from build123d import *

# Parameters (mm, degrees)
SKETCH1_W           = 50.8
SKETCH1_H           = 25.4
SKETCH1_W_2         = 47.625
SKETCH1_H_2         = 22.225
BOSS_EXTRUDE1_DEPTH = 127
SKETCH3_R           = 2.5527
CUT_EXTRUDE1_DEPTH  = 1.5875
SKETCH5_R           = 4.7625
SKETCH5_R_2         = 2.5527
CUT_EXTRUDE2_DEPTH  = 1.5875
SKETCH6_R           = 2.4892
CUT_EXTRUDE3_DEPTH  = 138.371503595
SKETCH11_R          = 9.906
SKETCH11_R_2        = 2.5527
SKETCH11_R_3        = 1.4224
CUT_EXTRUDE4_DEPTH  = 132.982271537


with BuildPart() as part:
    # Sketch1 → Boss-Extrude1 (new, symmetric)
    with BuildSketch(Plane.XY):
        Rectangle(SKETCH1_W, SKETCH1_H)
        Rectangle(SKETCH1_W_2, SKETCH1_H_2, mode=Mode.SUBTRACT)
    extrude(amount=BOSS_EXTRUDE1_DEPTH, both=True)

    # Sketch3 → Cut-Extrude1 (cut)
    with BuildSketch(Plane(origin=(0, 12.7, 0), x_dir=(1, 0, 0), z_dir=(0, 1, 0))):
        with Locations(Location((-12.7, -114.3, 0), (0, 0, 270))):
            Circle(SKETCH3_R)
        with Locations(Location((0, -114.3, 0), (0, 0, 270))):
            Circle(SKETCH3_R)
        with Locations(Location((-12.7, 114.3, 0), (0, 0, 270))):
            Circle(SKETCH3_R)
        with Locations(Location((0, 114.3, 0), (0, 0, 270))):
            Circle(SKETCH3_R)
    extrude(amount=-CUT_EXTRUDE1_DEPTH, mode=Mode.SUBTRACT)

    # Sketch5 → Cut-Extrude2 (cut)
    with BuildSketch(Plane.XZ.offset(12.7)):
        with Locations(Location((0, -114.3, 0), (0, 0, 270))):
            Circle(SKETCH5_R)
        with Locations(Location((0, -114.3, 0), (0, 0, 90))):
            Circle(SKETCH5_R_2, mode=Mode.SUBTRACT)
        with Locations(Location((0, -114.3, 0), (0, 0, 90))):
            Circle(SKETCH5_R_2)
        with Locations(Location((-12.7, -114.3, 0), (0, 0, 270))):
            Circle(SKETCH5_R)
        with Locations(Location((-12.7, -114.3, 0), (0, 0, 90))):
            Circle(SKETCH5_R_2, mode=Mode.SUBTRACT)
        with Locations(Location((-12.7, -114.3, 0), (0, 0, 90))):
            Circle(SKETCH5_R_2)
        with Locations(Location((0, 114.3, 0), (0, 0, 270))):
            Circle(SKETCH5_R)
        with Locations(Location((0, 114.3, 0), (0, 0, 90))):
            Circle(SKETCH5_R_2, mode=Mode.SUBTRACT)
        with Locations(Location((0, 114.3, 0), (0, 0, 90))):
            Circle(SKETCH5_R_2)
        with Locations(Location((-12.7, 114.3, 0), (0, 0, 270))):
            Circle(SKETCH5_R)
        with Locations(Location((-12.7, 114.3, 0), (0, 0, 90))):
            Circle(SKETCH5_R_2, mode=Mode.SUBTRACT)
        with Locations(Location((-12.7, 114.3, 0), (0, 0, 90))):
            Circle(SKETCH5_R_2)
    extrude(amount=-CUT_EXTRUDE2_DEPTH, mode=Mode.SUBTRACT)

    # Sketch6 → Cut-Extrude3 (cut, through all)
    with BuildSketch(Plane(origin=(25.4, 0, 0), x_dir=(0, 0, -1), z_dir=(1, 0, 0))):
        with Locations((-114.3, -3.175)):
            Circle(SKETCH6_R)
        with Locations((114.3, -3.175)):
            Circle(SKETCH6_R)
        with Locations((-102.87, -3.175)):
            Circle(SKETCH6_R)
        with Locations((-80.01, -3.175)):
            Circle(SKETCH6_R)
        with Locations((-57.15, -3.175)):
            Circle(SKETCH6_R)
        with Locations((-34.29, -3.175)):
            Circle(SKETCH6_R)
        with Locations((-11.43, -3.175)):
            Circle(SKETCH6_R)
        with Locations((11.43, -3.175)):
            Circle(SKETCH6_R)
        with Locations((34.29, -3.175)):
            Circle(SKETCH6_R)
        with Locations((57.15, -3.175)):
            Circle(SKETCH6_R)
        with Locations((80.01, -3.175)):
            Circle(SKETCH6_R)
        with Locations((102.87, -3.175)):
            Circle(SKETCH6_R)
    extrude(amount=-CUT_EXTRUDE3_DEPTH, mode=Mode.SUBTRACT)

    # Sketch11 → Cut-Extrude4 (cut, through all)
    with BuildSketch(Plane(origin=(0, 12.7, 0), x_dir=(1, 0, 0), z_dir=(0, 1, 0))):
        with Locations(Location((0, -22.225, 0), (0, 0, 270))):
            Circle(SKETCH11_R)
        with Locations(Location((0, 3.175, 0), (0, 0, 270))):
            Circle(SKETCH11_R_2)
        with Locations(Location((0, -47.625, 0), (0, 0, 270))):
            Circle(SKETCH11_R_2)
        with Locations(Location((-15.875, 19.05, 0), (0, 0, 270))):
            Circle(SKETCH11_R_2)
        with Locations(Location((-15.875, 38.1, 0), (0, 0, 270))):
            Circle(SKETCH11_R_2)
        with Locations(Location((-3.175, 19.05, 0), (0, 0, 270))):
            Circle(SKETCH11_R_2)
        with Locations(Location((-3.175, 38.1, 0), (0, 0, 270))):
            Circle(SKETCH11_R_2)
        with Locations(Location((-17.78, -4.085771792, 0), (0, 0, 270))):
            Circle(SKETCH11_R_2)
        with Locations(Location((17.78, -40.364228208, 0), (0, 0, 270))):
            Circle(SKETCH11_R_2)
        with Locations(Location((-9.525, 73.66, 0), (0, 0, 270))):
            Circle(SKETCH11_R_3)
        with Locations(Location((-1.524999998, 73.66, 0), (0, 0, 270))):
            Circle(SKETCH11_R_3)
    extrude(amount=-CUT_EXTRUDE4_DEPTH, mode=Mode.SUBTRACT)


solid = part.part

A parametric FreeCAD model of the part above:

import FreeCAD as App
import Part
import Sketcher
Q = App.Units.Quantity

doc = App.newDocument("Part")
body = doc.addObject("PartDesign::Body", "Body")

# Sketch on XY plane
sketch1 = body.newObject("Sketcher::SketchObject", "Sketch")
sketch1.AttachmentSupport = (doc.getObject("XY_Plane"), [""])
sketch1.MapMode = "FlatFace"
sketch1.addGeometry(Part.LineSegment(App.Vector(-25, 13, 0), App.Vector(-25, -13, 0)), False)
sketch1.addGeometry(Part.LineSegment(App.Vector(-25, -13, 0), App.Vector(25, -13, 0)), False)
sketch1.addGeometry(Part.LineSegment(App.Vector(25, -13, 0), App.Vector(25, 13, 0)), False)
sketch1.addGeometry(Part.LineSegment(App.Vector(25, 13, 0), App.Vector(-25, 13, 0)), False)
sketch1.addGeometry(Part.LineSegment(App.Vector(24, -11, 0), App.Vector(-24, -11, 0)), False)
sketch1.addGeometry(Part.LineSegment(App.Vector(-24, -11, 0), App.Vector(-24, 11, 0)), False)
sketch1.addGeometry(Part.LineSegment(App.Vector(-24, 11, 0), App.Vector(24, 11, 0)), False)
sketch1.addGeometry(Part.LineSegment(App.Vector(24, 11, 0), App.Vector(24, -11, 0)), False)
sketch1.addConstraint(Sketcher.Constraint("Coincident", 0, 2, 1, 1))
sketch1.addConstraint(Sketcher.Constraint("Coincident", 1, 2, 2, 1))
sketch1.addConstraint(Sketcher.Constraint("Coincident", 2, 2, 3, 1))
sketch1.addConstraint(Sketcher.Constraint("Coincident", 3, 2, 0, 1))
sketch1.addConstraint(Sketcher.Constraint("Coincident", 4, 2, 5, 1))
sketch1.addConstraint(Sketcher.Constraint("Coincident", 5, 2, 6, 1))
sketch1.addConstraint(Sketcher.Constraint("Coincident", 6, 2, 7, 1))
sketch1.addConstraint(Sketcher.Constraint("Coincident", 7, 2, 4, 1))
sketch1.addConstraint(Sketcher.Constraint("Vertical", 0))
sketch1.addConstraint(Sketcher.Constraint("Horizontal", 1))
sketch1.addConstraint(Sketcher.Constraint("Vertical", 2))
sketch1.addConstraint(Sketcher.Constraint("Horizontal", 3))
sketch1.addConstraint(Sketcher.Constraint("Horizontal", 4))
sketch1.addConstraint(Sketcher.Constraint("Vertical", 5))
sketch1.addConstraint(Sketcher.Constraint("Horizontal", 6))
sketch1.addConstraint(Sketcher.Constraint("Vertical", 7))
sketch1.addConstraint(Sketcher.Constraint("Symmetric", 0, 2, 2, 2, -1, 1))
sketch1.addConstraint(Sketcher.Constraint("Symmetric", 4, 2, 6, 2, -1, 1))
sketch1.addConstraint(Sketcher.Constraint("DistanceX", 1, 1, 1, 2, Q("2 in")))
sketch1.addConstraint(Sketcher.Constraint("DistanceY", 0, 2, 0, 1, Q("1 in")))
sketch1.addConstraint(Sketcher.Constraint("DistanceX", 4, 2, 4, 1, Q("1.875 in")))
sketch1.addConstraint(Sketcher.Constraint("DistanceY", 5, 1, 5, 2, Q("0.875 in")))
pad1 = body.newObject("PartDesign::Pad", "Pad")
pad1.Profile = sketch1
pad1.Length = Q("10 in")
pad1.Midplane = True

# Sketch on XZ plane
sketch2 = body.newObject("Sketcher::SketchObject", "Sketch001")
sketch2.AttachmentSupport = (doc.getObject("XZ_Plane"), [""])
sketch2.MapMode = "FlatFace"
sketch2.AttachmentOffset = App.Placement(App.Vector(0, 0, -0.5 * 25.4), App.Rotation())
sketch2.addGeometry(Part.Circle(App.Vector(-12.7, 114.3, 0), App.Vector(0, 0, 1), 2.6), False)
sketch2.addGeometry(Part.Circle(App.Vector(0, 114.3, 0), App.Vector(0, 0, 1), 2.6), False)
sketch2.addGeometry(Part.Circle(App.Vector(-12.7, -114.3, 0), App.Vector(0, 0, 1), 2.6), False)
sketch2.addGeometry(Part.Circle(App.Vector(0, -114.3, 0), App.Vector(0, 0, 1), 2.6), False)
sketch2.addConstraint(Sketcher.Constraint("Equal", 0, 1))
sketch2.addConstraint(Sketcher.Constraint("Equal", 1, 2))
sketch2.addConstraint(Sketcher.Constraint("Equal", 2, 3))
sketch2.addConstraint(Sketcher.Constraint("Symmetric", 1, 3, 3, 3, -1, 1))
sketch2.addConstraint(Sketcher.Constraint("Symmetric", 0, 3, 2, 3, -1))
sketch2.addConstraint(Sketcher.Constraint("PointOnObject", 1, 3, -2))
sketch2.addConstraint(Sketcher.Constraint("Horizontal", 0, 3, 1, 3))
sketch2.addConstraint(Sketcher.Constraint("Diameter", 0, Q("0.201 in")))
sketch2.addConstraint(Sketcher.Constraint("DistanceY", 2, 3, 0, 3, Q("9 in")))
sketch2.addConstraint(Sketcher.Constraint("DistanceX", 0, 3, -1, 1, Q("0.5 in")))
pocket1 = body.newObject("PartDesign::Pocket", "Pocket")
pocket1.Profile = sketch2
pocket1.Length = Q("0.0625 in")
pocket1.Reversed = True

# Sketch on XZ plane
sketch3 = body.newObject("Sketcher::SketchObject", "Sketch002")
sketch3.AttachmentSupport = (doc.getObject("XZ_Plane"), [""])
sketch3.MapMode = "FlatFace"
sketch3.AttachmentOffset = App.Placement(App.Vector(0, 0, 0.5 * 25.4), App.Rotation())
sketch3.addGeometry(Part.Circle(App.Vector(0, -114.3, 0), App.Vector(0, 0, 1), 4.8), False)
sketch3.addGeometry(Part.Circle(App.Vector(-12.7, -114.3, 0), App.Vector(0, 0, 1), 4.8), False)
sketch3.addGeometry(Part.Circle(App.Vector(0, 114.3, 0), App.Vector(0, 0, 1), 4.8), False)
sketch3.addGeometry(Part.Circle(App.Vector(-12.7, 114.3, 0), App.Vector(0, 0, 1), 4.8), False)
sketch3.addConstraint(Sketcher.Constraint("Equal", 0, 1))
sketch3.addConstraint(Sketcher.Constraint("Equal", 1, 2))
sketch3.addConstraint(Sketcher.Constraint("Equal", 2, 3))
sketch3.addConstraint(Sketcher.Constraint("Symmetric", 0, 3, 2, 3, -1, 1))
sketch3.addConstraint(Sketcher.Constraint("Symmetric", 1, 3, 3, 3, -1))
sketch3.addConstraint(Sketcher.Constraint("PointOnObject", 0, 3, -2))
sketch3.addConstraint(Sketcher.Constraint("Horizontal", 0, 3, 1, 3))
sketch3.addConstraint(Sketcher.Constraint("Diameter", 0, Q("0.375 in")))
sketch3.addConstraint(Sketcher.Constraint("DistanceY", 0, 3, 2, 3, Q("9 in")))
sketch3.addConstraint(Sketcher.Constraint("DistanceX", 1, 3, -1, 1, Q("0.5 in")))
pocket2 = body.newObject("PartDesign::Pocket", "Pocket001")
pocket2.Profile = sketch3
pocket2.Length = Q("0.0625 in")

# Sketch on YZ plane
sketch4 = body.newObject("Sketcher::SketchObject", "Sketch003")
sketch4.AttachmentSupport = (doc.getObject("YZ_Plane"), [""])
sketch4.MapMode = "FlatFace"
sketch4.AttachmentOffset = App.Placement(App.Vector(0, 0, 1 * 25.4), App.Rotation())
sketch4.addGeometry(Part.Circle(App.Vector(-3.2, 114.3, 0), App.Vector(0, 0, 1), 2.5), False)
sketch4.addGeometry(Part.Circle(App.Vector(-3.2, -114.3, 0), App.Vector(0, 0, 1), 2.5), False)
sketch4.addGeometry(Part.Circle(App.Vector(-3.2, 102.9, 0), App.Vector(0, 0, 1), 2.5), False)
sketch4.addGeometry(Part.Circle(App.Vector(-3.2, 80, 0), App.Vector(0, 0, 1), 2.5), False)
sketch4.addGeometry(Part.Circle(App.Vector(-3.2, 57.1, 0), App.Vector(0, 0, 1), 2.5), False)
sketch4.addGeometry(Part.Circle(App.Vector(-3.2, 34.3, 0), App.Vector(0, 0, 1), 2.5), False)
sketch4.addGeometry(Part.Circle(App.Vector(-3.2, 11.4, 0), App.Vector(0, 0, 1), 2.5), False)
sketch4.addGeometry(Part.Circle(App.Vector(-3.2, -11.4, 0), App.Vector(0, 0, 1), 2.5), False)
sketch4.addGeometry(Part.Circle(App.Vector(-3.2, -34.3, 0), App.Vector(0, 0, 1), 2.5), False)
sketch4.addGeometry(Part.Circle(App.Vector(-3.2, -57.1, 0), App.Vector(0, 0, 1), 2.5), False)
sketch4.addGeometry(Part.Circle(App.Vector(-3.2, -80, 0), App.Vector(0, 0, 1), 2.5), False)
sketch4.addGeometry(Part.Circle(App.Vector(-3.2, -102.9, 0), App.Vector(0, 0, 1), 2.5), False)
sketch4.addConstraint(Sketcher.Constraint("Equal", 0, 1))
sketch4.addConstraint(Sketcher.Constraint("Equal", 1, 2))
sketch4.addConstraint(Sketcher.Constraint("Equal", 2, 3))
sketch4.addConstraint(Sketcher.Constraint("Equal", 3, 4))
sketch4.addConstraint(Sketcher.Constraint("Equal", 4, 5))
sketch4.addConstraint(Sketcher.Constraint("Equal", 5, 6))
sketch4.addConstraint(Sketcher.Constraint("Equal", 6, 7))
sketch4.addConstraint(Sketcher.Constraint("Equal", 7, 8))
sketch4.addConstraint(Sketcher.Constraint("Equal", 8, 9))
sketch4.addConstraint(Sketcher.Constraint("Equal", 9, 10))
sketch4.addConstraint(Sketcher.Constraint("Equal", 10, 11))
sketch4.addConstraint(Sketcher.Constraint("Symmetric", 0, 3, 1, 3, -1))
sketch4.addConstraint(Sketcher.Constraint("Symmetric", 6, 3, 7, 3, -1))
sketch4.addConstraint(Sketcher.Constraint("Symmetric", 5, 3, 8, 3, -1))
sketch4.addConstraint(Sketcher.Constraint("Symmetric", 4, 3, 9, 3, -1))
sketch4.addConstraint(Sketcher.Constraint("Symmetric", 3, 3, 10, 3, -1))
sketch4.addConstraint(Sketcher.Constraint("Symmetric", 2, 3, 11, 3, -1))
sketch4.addConstraint(Sketcher.Constraint("Vertical", 1, 3, 2, 3))
sketch4.addConstraint(Sketcher.Constraint("Vertical", 2, 3, 3, 3))
sketch4.addConstraint(Sketcher.Constraint("Vertical", 3, 3, 4, 3))
sketch4.addConstraint(Sketcher.Constraint("Vertical", 4, 3, 5, 3))
sketch4.addConstraint(Sketcher.Constraint("Vertical", 5, 3, 6, 3))
sketch4.addConstraint(Sketcher.Constraint("Diameter", 0, Q("0.196 in")))
sketch4.addConstraint(Sketcher.Constraint("DistanceY", 1, 3, 0, 3, Q("9 in")))
sketch4.addConstraint(Sketcher.Constraint("DistanceY", 3, 3, 2, 3, Q("0.9 in")))
sketch4.addConstraint(Sketcher.Constraint("DistanceY", 4, 3, 3, 3, Q("0.9 in")))
sketch4.addConstraint(Sketcher.Constraint("DistanceY", 5, 3, 4, 3, Q("0.9 in")))
sketch4.addConstraint(Sketcher.Constraint("DistanceY", 6, 3, 5, 3, Q("0.9 in")))
sketch4.addConstraint(Sketcher.Constraint("DistanceY", 7, 3, 6, 3, Q("0.9 in")))
sketch4.addConstraint(Sketcher.Constraint("DistanceX", 0, 3, -1, 1, Q("0.125 in")))
pocket3 = body.newObject("PartDesign::Pocket", "Pocket002")
pocket3.Profile = sketch4
pocket3.Type = "ThroughAll"

# Sketch on XZ plane
sketch5 = body.newObject("Sketcher::SketchObject", "Sketch004")
sketch5.AttachmentSupport = (doc.getObject("XZ_Plane"), [""])
sketch5.MapMode = "FlatFace"
sketch5.AttachmentOffset = App.Placement(App.Vector(0, 0, -0.5 * 25.4), App.Rotation())
sketch5.addGeometry(Part.Circle(App.Vector(0, 22.2, 0), App.Vector(0, 0, 1), 9.9), False)
sketch5.addGeometry(Part.Circle(App.Vector(0, -3.2, 0), App.Vector(0, 0, 1), 2.6), False)
sketch5.addGeometry(Part.Circle(App.Vector(0, 47.6, 0), App.Vector(0, 0, 1), 2.6), False)
sketch5.addGeometry(Part.Circle(App.Vector(-15.9, -19.1, 0), App.Vector(0, 0, 1), 2.6), False)
sketch5.addGeometry(Part.Circle(App.Vector(-15.9, -38.1, 0), App.Vector(0, 0, 1), 2.6), False)
sketch5.addGeometry(Part.Circle(App.Vector(-3.2, -19.1, 0), App.Vector(0, 0, 1), 2.6), False)
sketch5.addGeometry(Part.Circle(App.Vector(-3.2, -38.1, 0), App.Vector(0, 0, 1), 2.6), False)
sketch5.addGeometry(Part.Circle(App.Vector(-17.8, 4.1, 0), App.Vector(0, 0, 1), 2.6), False)
sketch5.addGeometry(Part.Circle(App.Vector(17.8, 40.4, 0), App.Vector(0, 0, 1), 2.6), False)
sketch5.addGeometry(Part.Circle(App.Vector(-9.5, -73.7, 0), App.Vector(0, 0, 1), 1.4), False)
sketch5.addGeometry(Part.Circle(App.Vector(-1.5, -73.7, 0), App.Vector(0, 0, 1), 1.4), False)
sketch5.addConstraint(Sketcher.Constraint("Equal", 1, 2))
sketch5.addConstraint(Sketcher.Constraint("Equal", 2, 3))
sketch5.addConstraint(Sketcher.Constraint("Equal", 3, 4))
sketch5.addConstraint(Sketcher.Constraint("Equal", 4, 5))
sketch5.addConstraint(Sketcher.Constraint("Equal", 5, 6))
sketch5.addConstraint(Sketcher.Constraint("Equal", 6, 7))
sketch5.addConstraint(Sketcher.Constraint("Equal", 7, 8))
sketch5.addConstraint(Sketcher.Constraint("Equal", 9, 10))
sketch5.addConstraint(Sketcher.Constraint("PointOnObject", 0, 3, -2))
sketch5.addConstraint(Sketcher.Constraint("PointOnObject", 1, 3, -2))
sketch5.addConstraint(Sketcher.Constraint("PointOnObject", 2, 3, -2))
sketch5.addConstraint(Sketcher.Constraint("Horizontal", 3, 3, 5, 3))
sketch5.addConstraint(Sketcher.Constraint("Horizontal", 4, 3, 6, 3))
sketch5.addConstraint(Sketcher.Constraint("Horizontal", 9, 3, 10, 3))
sketch5.addConstraint(Sketcher.Constraint("Vertical", 3, 3, 4, 3))
sketch5.addConstraint(Sketcher.Constraint("Vertical", 5, 3, 6, 3))
sketch5.addConstraint(Sketcher.Constraint("Diameter", 0, Q("0.78 in")))
sketch5.addConstraint(Sketcher.Constraint("Diameter", 1, Q("0.201 in")))
sketch5.addConstraint(Sketcher.Constraint("Diameter", 9, Q("0.112 in")))
sketch5.addConstraint(Sketcher.Constraint("DistanceY", 1, 3, 0, 3, Q("1 in")))
sketch5.addConstraint(Sketcher.Constraint("DistanceY", 0, 3, 2, 3, Q("1 in")))
sketch5.addConstraint(Sketcher.Constraint("DistanceY", 4, 3, -1, 1, Q("1.5 in")))
sketch5.addConstraint(Sketcher.Constraint("DistanceX", 7, 3, -1, 1, Q("0.7 in")))
sketch5.addConstraint(Sketcher.Constraint("DistanceX", -1, 1, 8, 3, Q("0.7 in")))
sketch5.addConstraint(Sketcher.Constraint("DistanceY", 9, 3, -1, 1, Q("2.9 in")))
sketch5.addConstraint(Sketcher.Constraint("DistanceX", 3, 3, 5, 3, Q("0.5 in")))
sketch5.addConstraint(Sketcher.Constraint("DistanceY", 3, 3, -1, 1, Q("0.75 in")))
sketch5.addConstraint(Sketcher.Constraint("DistanceX", 4, 3, 9, 3, Q("0.25 in")))
sketch5.addConstraint(Sketcher.Constraint("DistanceY", -1, 1, 0, 3, Q("0.875 in")))
sketch5.addConstraint(Sketcher.Constraint("DistanceX", 3, 3, -1, 1, Q("0.625 in")))
sketch5.addConstraint(Sketcher.Constraint("DistanceX", 10, 3, -1, 1, 1.525))
sketch5.addConstraint(Sketcher.Constraint("DistanceY", -1, 1, 7, 3, 4.085772))
sketch5.addConstraint(Sketcher.Constraint("DistanceY", -1, 1, 8, 3, 40.364228))
pocket4 = body.newObject("PartDesign::Pocket", "Pocket003")
pocket4.Profile = sketch5
pocket4.Type = "ThroughAll"
pocket4.Reversed = True

doc.recompute()
